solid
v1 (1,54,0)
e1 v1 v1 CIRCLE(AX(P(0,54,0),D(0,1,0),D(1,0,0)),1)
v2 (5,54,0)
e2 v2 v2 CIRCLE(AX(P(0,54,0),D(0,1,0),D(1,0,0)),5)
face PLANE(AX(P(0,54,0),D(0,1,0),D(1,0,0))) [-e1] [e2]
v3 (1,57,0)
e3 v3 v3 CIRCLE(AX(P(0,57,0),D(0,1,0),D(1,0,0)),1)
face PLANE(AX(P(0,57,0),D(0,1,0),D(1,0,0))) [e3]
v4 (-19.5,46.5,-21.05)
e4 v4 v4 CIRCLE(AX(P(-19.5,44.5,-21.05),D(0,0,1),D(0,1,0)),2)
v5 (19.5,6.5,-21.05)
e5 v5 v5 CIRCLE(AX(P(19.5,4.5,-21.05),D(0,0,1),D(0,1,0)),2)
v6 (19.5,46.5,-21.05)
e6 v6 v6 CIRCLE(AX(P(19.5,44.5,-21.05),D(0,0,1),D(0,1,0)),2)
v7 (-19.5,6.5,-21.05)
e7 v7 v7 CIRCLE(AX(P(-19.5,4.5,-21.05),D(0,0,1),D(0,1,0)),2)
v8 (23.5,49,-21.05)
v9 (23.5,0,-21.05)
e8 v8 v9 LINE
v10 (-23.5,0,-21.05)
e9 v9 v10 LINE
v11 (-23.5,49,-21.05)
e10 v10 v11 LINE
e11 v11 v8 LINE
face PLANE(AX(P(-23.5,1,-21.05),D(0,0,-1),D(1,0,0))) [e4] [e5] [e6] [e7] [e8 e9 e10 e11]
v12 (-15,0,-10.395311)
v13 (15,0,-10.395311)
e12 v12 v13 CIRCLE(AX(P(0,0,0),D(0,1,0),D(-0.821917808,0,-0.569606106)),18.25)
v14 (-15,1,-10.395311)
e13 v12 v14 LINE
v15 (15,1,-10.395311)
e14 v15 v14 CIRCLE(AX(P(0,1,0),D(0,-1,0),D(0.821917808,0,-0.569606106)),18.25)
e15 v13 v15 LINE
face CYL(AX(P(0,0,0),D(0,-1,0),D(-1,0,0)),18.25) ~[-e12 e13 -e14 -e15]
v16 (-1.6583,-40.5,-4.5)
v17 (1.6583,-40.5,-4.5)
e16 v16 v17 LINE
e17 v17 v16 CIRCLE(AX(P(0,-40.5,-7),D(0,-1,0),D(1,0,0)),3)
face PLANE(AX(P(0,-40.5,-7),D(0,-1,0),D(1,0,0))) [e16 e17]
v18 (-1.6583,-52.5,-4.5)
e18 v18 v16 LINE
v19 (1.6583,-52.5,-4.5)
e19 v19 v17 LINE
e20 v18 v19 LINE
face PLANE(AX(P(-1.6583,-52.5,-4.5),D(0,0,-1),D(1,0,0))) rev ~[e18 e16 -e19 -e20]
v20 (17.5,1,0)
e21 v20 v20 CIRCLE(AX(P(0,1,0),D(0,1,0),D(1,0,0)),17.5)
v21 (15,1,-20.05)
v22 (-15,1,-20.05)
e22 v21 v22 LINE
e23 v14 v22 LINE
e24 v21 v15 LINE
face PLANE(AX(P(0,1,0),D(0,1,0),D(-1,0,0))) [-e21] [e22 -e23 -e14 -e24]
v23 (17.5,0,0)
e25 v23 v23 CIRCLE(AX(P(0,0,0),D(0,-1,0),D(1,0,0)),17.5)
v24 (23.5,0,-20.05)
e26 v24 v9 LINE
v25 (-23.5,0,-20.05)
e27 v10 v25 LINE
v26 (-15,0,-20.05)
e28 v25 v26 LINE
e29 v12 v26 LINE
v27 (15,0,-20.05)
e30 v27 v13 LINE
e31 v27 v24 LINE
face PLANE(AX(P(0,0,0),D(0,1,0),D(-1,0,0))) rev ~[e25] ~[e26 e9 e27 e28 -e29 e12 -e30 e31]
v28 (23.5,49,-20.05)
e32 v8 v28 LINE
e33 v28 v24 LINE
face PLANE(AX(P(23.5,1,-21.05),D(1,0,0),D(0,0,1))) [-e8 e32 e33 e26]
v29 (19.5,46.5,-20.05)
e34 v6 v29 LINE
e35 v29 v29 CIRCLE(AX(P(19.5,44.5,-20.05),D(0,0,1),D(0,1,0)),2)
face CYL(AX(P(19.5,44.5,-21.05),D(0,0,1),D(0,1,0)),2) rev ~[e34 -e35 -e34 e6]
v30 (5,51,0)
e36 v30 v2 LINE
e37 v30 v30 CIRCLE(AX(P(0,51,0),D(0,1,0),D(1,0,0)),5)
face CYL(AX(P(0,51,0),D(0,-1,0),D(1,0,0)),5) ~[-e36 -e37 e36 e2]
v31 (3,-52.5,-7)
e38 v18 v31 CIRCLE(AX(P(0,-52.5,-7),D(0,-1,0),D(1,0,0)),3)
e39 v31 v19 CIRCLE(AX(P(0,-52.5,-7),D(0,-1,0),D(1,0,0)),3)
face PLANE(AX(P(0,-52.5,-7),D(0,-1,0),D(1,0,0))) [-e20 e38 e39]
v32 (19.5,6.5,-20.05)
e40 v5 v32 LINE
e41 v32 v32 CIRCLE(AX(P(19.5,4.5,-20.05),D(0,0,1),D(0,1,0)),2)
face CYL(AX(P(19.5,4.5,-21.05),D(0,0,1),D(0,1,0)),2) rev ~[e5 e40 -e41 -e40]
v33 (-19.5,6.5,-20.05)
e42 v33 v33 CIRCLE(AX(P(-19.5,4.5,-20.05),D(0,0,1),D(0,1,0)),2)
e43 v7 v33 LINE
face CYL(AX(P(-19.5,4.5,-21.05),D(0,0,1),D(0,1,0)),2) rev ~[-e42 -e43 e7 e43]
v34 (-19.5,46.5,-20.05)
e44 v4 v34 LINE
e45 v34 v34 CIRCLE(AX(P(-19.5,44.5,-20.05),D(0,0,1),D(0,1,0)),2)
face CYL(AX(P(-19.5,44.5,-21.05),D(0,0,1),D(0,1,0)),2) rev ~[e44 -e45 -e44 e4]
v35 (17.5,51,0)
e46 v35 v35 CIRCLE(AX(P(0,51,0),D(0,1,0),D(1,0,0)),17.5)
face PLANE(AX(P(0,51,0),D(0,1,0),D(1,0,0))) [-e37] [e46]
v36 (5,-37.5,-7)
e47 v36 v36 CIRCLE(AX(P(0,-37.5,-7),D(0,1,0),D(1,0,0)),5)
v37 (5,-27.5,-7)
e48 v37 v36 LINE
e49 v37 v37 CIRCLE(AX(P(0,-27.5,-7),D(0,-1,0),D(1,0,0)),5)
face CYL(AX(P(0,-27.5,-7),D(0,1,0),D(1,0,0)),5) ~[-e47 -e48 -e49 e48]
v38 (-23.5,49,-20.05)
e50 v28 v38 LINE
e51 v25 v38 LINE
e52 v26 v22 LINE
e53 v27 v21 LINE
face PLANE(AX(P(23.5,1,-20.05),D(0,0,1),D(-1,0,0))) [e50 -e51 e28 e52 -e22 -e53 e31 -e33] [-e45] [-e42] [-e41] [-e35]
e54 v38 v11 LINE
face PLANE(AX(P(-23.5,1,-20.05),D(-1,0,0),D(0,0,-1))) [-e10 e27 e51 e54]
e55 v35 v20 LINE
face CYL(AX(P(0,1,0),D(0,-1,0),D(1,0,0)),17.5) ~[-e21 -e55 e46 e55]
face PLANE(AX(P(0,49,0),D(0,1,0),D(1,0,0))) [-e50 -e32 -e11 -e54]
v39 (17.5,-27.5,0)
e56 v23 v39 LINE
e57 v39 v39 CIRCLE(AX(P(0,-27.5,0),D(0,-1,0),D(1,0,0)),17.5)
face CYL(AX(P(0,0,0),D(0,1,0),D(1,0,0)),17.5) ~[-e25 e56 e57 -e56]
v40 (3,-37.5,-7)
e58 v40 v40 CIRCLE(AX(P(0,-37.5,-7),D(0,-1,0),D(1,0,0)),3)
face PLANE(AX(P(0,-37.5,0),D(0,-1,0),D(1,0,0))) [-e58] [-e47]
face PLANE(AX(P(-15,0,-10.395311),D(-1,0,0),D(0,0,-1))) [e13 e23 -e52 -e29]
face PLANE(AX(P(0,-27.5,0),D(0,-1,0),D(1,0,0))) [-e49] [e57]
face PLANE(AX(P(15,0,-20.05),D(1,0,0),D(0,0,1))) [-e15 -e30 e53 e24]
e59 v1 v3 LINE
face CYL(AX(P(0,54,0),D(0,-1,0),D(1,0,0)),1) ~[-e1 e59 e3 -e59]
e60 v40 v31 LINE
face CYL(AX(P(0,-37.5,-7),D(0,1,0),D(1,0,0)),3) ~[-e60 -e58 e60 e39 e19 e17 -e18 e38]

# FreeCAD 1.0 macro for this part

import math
import FreeCAD as App
import Part
import Sketcher

V = App.Vector


def add_polygon(sketch, points):
    """Adds a closed chain of lines whose ends are joined by coincident constraints."""
    first, n = sketch.GeometryCount, len(points)
    for a, b in zip(points, points[1:] + points[:1]):
        sketch.addGeometry(Part.LineSegment(App.Vector(*a, 0), App.Vector(*b, 0)), False)
    for i in range(n):
        sketch.addConstraint(Sketcher.Constraint("Coincident", first + i, 2, first + (i + 1) % n, 1))

doc = App.newDocument("Part")
body = doc.addObject("PartDesign::Body", "Body")

sketch1 = body.newObject("Sketcher::SketchObject", "Sketch")
sketch1.AttachmentSupport = (doc.getObject("XZ_Plane"), [""])
sketch1.MapMode = "FlatFace"
sketch1.addGeometry([
    Part.ArcOfCircle(Part.Circle(V(0, 0, 0), V(0, 0, 1), 18.2), math.radians(-35), math.radians(215)),
    Part.LineSegment(V(15, -10.4, 0), V(15, -20.1, 0)),
    Part.LineSegment(V(15, -20.1, 0), V(23.5, -20.1, 0)),
    Part.LineSegment(V(23.5, -20.1, 0), V(23.5, -21.1, 0)),
    Part.LineSegment(V(23.5, -21.1, 0), V(-23.5, -21.1, 0)),
    Part.LineSegment(V(-23.5, -21.1, 0), V(-23.5, -20.1, 0)),
    Part.LineSegment(V(-23.5, -20.1, 0), V(-15, -20.1, 0)),
    Part.LineSegment(V(-15, -20.1, 0), V(-15, -10.4, 0)),
], False)
sketch1.addConstraint([
    Sketcher.Constraint("Coincident", 0, 1, 1, 1),
    Sketcher.Constraint("Coincident", 1, 2, 2, 1),
    Sketcher.Constraint("Coincident", 2, 2, 3, 1),
    Sketcher.Constraint("Coincident", 3, 2, 4, 1),
    Sketcher.Constraint("Coincident", 4, 2, 5, 1),
    Sketcher.Constraint("Coincident", 5, 2, 6, 1),
    Sketcher.Constraint("Coincident", 6, 2, 7, 1),
    Sketcher.Constraint("Coincident", 7, 2, 0, 2),
    Sketcher.Constraint("Vertical", 1),
    Sketcher.Constraint("Horizontal", 2),
    Sketcher.Constraint("Vertical", 3),
    Sketcher.Constraint("Horizontal", 4),
    Sketcher.Constraint("Vertical", 5),
    Sketcher.Constraint("Horizontal", 6),
    Sketcher.Constraint("Vertical", 7),
    Sketcher.Constraint("Coincident", 0, 3, -1, 1),
    Sketcher.Constraint("Symmetric", 2, 2, 5, 2, -2),
    Sketcher.Constraint("Horizontal", 0, 1, 7, 2),
    Sketcher.Constraint("DistanceX", 4, 2, 4, 1, 47.0),
    Sketcher.Constraint("DistanceY", 3, 2, 3, 1, 1.0),
    Sketcher.Constraint("Radius", 0, 18.25),
    Sketcher.Constraint("DistanceX", -1, 1, 0, 1, 15.0),
    Sketcher.Constraint("DistanceY", 1, 2, -1, 1, 20.05),
])
pad1 = body.newObject("PartDesign::Pad", "Pad")
pad1.Profile = sketch1
pad1.Length = 1
pad1.Reversed = True

sketch2 = body.newObject("Sketcher::SketchObject", "Sketch001")
sketch2.AttachmentSupport = (doc.getObject("XZ_Plane"), [""])
sketch2.MapMode = "FlatFace"
sketch2.AttachmentOffset = App.Placement(V(0, 0, -1), App.Rotation())
sketch2.addGeometry(Part.Circle(V(0, 0, 0), V(0, 0, 1), 18), False)
sketch2.addConstraint([
    Sketcher.Constraint("Coincident", 0, 3, -1, 1),
    Sketcher.Constraint("Diameter", 0, 35.0),
])
pad2 = body.newObject("PartDesign::Pad", "Pad001")
pad2.Profile = sketch2
pad2.Length = 50
pad2.Reversed = True

sketch3 = body.newObject("Sketcher::SketchObject", "Sketch002")
sketch3.AttachmentSupport = (doc.getObject("XZ_Plane"), [""])
sketch3.MapMode = "FlatFace"
sketch3.addGeometry(Part.Circle(V(0, 0, 0), V(0, 0, 1), 18), False)
sketch3.addConstraint([
    Sketcher.Constraint("Coincident", 0, 3, -1, 1),
    Sketcher.Constraint("Diameter", 0, 35.0),
])
pad3 = body.newObject("PartDesign::Pad", "Pad002")
pad3.Profile = sketch3
pad3.Length = 27.5

sketch4 = body.newObject("Sketcher::SketchObject", "Sketch003")
sketch4.AttachmentSupport = (doc.getObject("XZ_Plane"), [""])
sketch4.MapMode = "FlatFace"
sketch4.AttachmentOffset = App.Placement(V(0, 0, -1), App.Rotation())
add_polygon(sketch4, [(23.5, -21.1), (-23.5, -21.1), (-23.5, -20.1), (23.5, -20.1)])
sketch4.addConstraint([
    Sketcher.Constraint("Horizontal", 0),
    Sketcher.Constraint("Vertical", 1),
    Sketcher.Constraint("Horizontal", 2),
    Sketcher.Constraint("Vertical", 3),
    Sketcher.Constraint("DistanceX", 0, 2, 0, 1, 47.0),
    Sketcher.Constraint("DistanceY", 1, 1, 1, 2, 1.0),
    Sketcher.Constraint("DistanceX", 0, 2, -1, 1, 23.5),
    Sketcher.Constraint("DistanceY", 0, 2, -1, 1, 21.05),
])
pad4 = body.newObject("PartDesign::Pad", "Pad003")
pad4.Profile = sketch4
pad4.Length = 48
pad4.Reversed = True

sketch5 = body.newObject("Sketcher::SketchObject", "Sketch004")
sketch5.AttachmentSupport = (doc.getObject("XZ_Plane"), [""])
sketch5.MapMode = "FlatFace"
sketch5.AttachmentOffset = App.Placement(V(0, 0, 27.5), App.Rotation())
sketch5.addGeometry(Part.Circle(V(0, -7, 0), V(0, 0, 1), 5), False)
sketch5.addConstraint([
    Sketcher.Constraint("PointOnObject", 0, 3, -2),
    Sketcher.Constraint("Diameter", 0, 10.0),
    Sketcher.Constraint("DistanceY", 0, 3, -1, 1, 7.0),
])
pad5 = body.newObject("PartDesign::Pad", "Pad004")
pad5.Profile = sketch5
pad5.Length = 10

sketch6 = body.newObject("Sketcher::SketchObject", "Sketch005")
sketch6.AttachmentSupport = (doc.getObject("XZ_Plane"), [""])
sketch6.MapMode = "FlatFace"
sketch6.AttachmentOffset = App.Placement(V(0, 0, 37.5), App.Rotation())
sketch6.addGeometry(Part.Circle(V(0, -7, 0), V(0, 0, 1), 3), False)
sketch6.addConstraint([
    Sketcher.Constraint("PointOnObject", 0, 3, -2),
    Sketcher.Constraint("Diameter", 0, 6.0),
    Sketcher.Constraint("DistanceY", 0, 3, -1, 1, 7.0),
])
pad6 = body.newObject("PartDesign::Pad", "Pad005")
pad6.Profile = sketch6
pad6.Length = 15

sketch7 = body.newObject("Sketcher::SketchObject", "Sketch006")
sketch7.AttachmentSupport = (doc.getObject("XZ_Plane"), [""])
sketch7.MapMode = "FlatFace"
sketch7.AttachmentOffset = App.Placement(V(0, 0, 52.5), App.Rotation())
sketch7.addGeometry([
    Part.LineSegment(V(-1.7, -4.5, 0), V(1.7, -4.5, 0)),
    Part.ArcOfCircle(Part.Circle(V(0, -7, 0), V(0, 0, 1), 3), math.radians(56), math.radians(124)),
], False)
sketch7.addConstraint([
    Sketcher.Constraint("Coincident", 0, 1, 1, 2),
    Sketcher.Constraint("Coincident", 1, 1, 0, 2),
    Sketcher.Constraint("Horizontal", 0),
    Sketcher.Constraint("PointOnObject", 1, 3, -2),
    Sketcher.Constraint("Radius", 1, 3.0),
    Sketcher.Constraint("DistanceY", 1, 3, -1, 1, 7.0),
    Sketcher.Constraint("DistanceY", 0, 1, -1, 1, 4.5),
])
pocket1 = body.newObject("PartDesign::Pocket", "Pocket")
pocket1.Profile = sketch7
pocket1.Length = 12

sketch8 = body.newObject("Sketcher::SketchObject", "Sketch007")
sketch8.AttachmentSupport = (doc.getObject("XZ_Plane"), [""])
sketch8.MapMode = "FlatFace"
sketch8.AttachmentOffset = App.Placement(V(0, 0, -51), App.Rotation())
sketch8.addGeometry(Part.Circle(V(0, 0, 0), V(0, 0, 1), 5), False)
sketch8.addConstraint([
    Sketcher.Constraint("Coincident", 0, 3, -1, 1),
    Sketcher.Constraint("Diameter", 0, 10.0),
])
pad7 = body.newObject("PartDesign::Pad", "Pad006")
pad7.Profile = sketch8
pad7.Length = 3
pad7.Reversed = True

sketch9 = body.newObject("Sketcher::SketchObject", "Sketch008")
sketch9.AttachmentSupport = (doc.getObject("XZ_Plane"), [""])
sketch9.MapMode = "FlatFace"
sketch9.AttachmentOffset = App.Placement(V(0, 0, -54), App.Rotation())
sketch9.addGeometry(Part.Circle(V(0, 0, 0), V(0, 0, 1), 1), False)
sketch9.addConstraint([
    Sketcher.Constraint("Coincident", 0, 3, -1, 1),
    Sketcher.Constraint("Diameter", 0, 2.0),
])
pad8 = body.newObject("PartDesign::Pad", "Pad007")
pad8.Profile = sketch9
pad8.Length = 3
pad8.Reversed = True

sketch10 = body.newObject("Sketcher::SketchObject", "Sketch009")
sketch10.AttachmentSupport = (doc.getObject("XY_Plane"), [""])
sketch10.MapMode = "FlatFace"
sketch10.AttachmentOffset = App.Placement(V(0, 0, -21.05), App.Rotation())
sketch10.addGeometry([
    Part.Circle(V(19.5, 44.5, 0), V(0, 0, 1), 2),
    Part.Circle(V(-19.5, 44.5, 0), V(0, 0, 1), 2),
    Part.Circle(V(-19.5, 4.5, 0), V(0, 0, 1), 2),
    Part.Circle(V(19.5, 4.5, 0), V(0, 0, 1), 2),
], False)
sketch10.addConstraint([
    Sketcher.Constraint("Equal", 0, 1),
    Sketcher.Constraint("Equal", 1, 2),
    Sketcher.Constraint("Equal", 2, 3),
    Sketcher.Constraint("Symmetric", 0, 3, 1, 3, -2),
    Sketcher.Constraint("Symmetric", 2, 3, 3, 3, -2),
    Sketcher.Constraint("Vertical", 1, 3, 2, 3),
    Sketcher.Constraint("Diameter", 0, 4.0),
    Sketcher.Constraint("DistanceX", 1, 3, 0, 3, 39.0),
    Sketcher.Constraint("DistanceY", 2, 3, 1, 3, 40.0),
    Sketcher.Constraint("DistanceY", -1, 1, 0, 3, 44.5),
])
doc.recompute()
hole = body.newObject("PartDesign::Hole", "Hole")
hole.Profile = sketch10
hole.ThreadType = "None"
hole.Diameter = 4
hole.DepthType = "ThroughAll"
hole.Reversed = True

doc.recompute()
